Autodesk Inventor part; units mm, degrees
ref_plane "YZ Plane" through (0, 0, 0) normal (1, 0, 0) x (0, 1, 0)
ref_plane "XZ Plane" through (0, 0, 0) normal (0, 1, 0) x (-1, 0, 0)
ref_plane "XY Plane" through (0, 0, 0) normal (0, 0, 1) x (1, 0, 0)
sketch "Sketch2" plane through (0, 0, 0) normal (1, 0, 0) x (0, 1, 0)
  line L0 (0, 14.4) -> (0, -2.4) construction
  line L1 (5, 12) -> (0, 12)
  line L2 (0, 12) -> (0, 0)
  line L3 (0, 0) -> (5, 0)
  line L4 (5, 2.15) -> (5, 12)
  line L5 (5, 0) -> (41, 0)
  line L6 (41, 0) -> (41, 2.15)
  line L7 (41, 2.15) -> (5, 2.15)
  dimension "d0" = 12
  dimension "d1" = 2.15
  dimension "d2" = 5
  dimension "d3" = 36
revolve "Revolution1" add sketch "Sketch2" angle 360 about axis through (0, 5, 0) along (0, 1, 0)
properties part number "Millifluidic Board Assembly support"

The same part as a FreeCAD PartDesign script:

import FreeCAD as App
import Part
import Sketcher

V = App.Vector
Q = App.Units.Quantity


def add_polygon(sketch, points):
    """Adds a closed chain of lines whose ends are joined by coincident constraints."""
    first, n = sketch.GeometryCount, len(points)
    for a, b in zip(points, points[1:] + points[:1]):
        sketch.addGeometry(Part.LineSegment(App.Vector(*a, 0), App.Vector(*b, 0)), False)
    for i in range(n):
        sketch.addConstraint(Sketcher.Constraint("Coincident", first + i, 2, first + (i + 1) % n, 1))

doc = App.newDocument("Part")
params = doc.addObject("Spreadsheet::Sheet", "Params")
for row, (alias, value) in enumerate([
    ("sketch1_width", "5 mm"),
    ("sketch1_width2", "36 mm"),
    ("sketch1_height", "12 mm"),
    ("sketch1_height2", "2.15 mm"),
    ("revolution_angle", "360 deg"),
], start=1):
    params.set(f"A{row}", alias)
    params.set(f"B{row}", "=" + value)
    params.setAlias(f"B{row}", alias)

body = doc.addObject("PartDesign::Body", "Body")

sketch1 = doc.addObject("Sketcher::SketchObject", "Sketch")
body.addObject(sketch1)
sketch1.AttachmentSupport = (doc.YZ_Plane, [""])
sketch1.MapMode = "FlatFace"
add_polygon(sketch1, [(5, 2.15), (5, 12), (0, 12), (0, 0), (41, 0), (41, 2.15)])
sketch1.addConstraint([
    Sketcher.Constraint("Vertical", 0),
    Sketcher.Constraint("Horizontal", 1),
    Sketcher.Constraint("Vertical", 2),
    Sketcher.Constraint("Horizontal", 3),
    Sketcher.Constraint("Vertical", 4),
    Sketcher.Constraint("Horizontal", 5),
    Sketcher.Constraint("Coincident", 2, 2, -1, 1),
    Sketcher.Constraint("DistanceX", 1, 2, 1, 1, Q("5 mm")),
    Sketcher.Constraint("DistanceX", 5, 2, 5, 1, Q("36 mm")),
    Sketcher.Constraint("DistanceY", 2, 2, 2, 1, Q("12 mm")),
    Sketcher.Constraint("DistanceY", 4, 1, 4, 2, Q("2.15 mm")),
])
sketch1.setExpression("Constraints[13]", "Params.sketch1_width")
sketch1.setExpression("Constraints[14]", "Params.sketch1_width2")
sketch1.setExpression("Constraints[15]", "Params.sketch1_height")
sketch1.setExpression("Constraints[16]", "Params.sketch1_height2")
revolution = doc.addObject("PartDesign::Revolution", "Revolution")
body.addObject(revolution)
revolution.Profile = sketch1
revolution.ReferenceAxis = (sketch1, ["H_Axis"])
revolution.setExpression("Angle", "Params.revolution_angle")

doc.recompute()
